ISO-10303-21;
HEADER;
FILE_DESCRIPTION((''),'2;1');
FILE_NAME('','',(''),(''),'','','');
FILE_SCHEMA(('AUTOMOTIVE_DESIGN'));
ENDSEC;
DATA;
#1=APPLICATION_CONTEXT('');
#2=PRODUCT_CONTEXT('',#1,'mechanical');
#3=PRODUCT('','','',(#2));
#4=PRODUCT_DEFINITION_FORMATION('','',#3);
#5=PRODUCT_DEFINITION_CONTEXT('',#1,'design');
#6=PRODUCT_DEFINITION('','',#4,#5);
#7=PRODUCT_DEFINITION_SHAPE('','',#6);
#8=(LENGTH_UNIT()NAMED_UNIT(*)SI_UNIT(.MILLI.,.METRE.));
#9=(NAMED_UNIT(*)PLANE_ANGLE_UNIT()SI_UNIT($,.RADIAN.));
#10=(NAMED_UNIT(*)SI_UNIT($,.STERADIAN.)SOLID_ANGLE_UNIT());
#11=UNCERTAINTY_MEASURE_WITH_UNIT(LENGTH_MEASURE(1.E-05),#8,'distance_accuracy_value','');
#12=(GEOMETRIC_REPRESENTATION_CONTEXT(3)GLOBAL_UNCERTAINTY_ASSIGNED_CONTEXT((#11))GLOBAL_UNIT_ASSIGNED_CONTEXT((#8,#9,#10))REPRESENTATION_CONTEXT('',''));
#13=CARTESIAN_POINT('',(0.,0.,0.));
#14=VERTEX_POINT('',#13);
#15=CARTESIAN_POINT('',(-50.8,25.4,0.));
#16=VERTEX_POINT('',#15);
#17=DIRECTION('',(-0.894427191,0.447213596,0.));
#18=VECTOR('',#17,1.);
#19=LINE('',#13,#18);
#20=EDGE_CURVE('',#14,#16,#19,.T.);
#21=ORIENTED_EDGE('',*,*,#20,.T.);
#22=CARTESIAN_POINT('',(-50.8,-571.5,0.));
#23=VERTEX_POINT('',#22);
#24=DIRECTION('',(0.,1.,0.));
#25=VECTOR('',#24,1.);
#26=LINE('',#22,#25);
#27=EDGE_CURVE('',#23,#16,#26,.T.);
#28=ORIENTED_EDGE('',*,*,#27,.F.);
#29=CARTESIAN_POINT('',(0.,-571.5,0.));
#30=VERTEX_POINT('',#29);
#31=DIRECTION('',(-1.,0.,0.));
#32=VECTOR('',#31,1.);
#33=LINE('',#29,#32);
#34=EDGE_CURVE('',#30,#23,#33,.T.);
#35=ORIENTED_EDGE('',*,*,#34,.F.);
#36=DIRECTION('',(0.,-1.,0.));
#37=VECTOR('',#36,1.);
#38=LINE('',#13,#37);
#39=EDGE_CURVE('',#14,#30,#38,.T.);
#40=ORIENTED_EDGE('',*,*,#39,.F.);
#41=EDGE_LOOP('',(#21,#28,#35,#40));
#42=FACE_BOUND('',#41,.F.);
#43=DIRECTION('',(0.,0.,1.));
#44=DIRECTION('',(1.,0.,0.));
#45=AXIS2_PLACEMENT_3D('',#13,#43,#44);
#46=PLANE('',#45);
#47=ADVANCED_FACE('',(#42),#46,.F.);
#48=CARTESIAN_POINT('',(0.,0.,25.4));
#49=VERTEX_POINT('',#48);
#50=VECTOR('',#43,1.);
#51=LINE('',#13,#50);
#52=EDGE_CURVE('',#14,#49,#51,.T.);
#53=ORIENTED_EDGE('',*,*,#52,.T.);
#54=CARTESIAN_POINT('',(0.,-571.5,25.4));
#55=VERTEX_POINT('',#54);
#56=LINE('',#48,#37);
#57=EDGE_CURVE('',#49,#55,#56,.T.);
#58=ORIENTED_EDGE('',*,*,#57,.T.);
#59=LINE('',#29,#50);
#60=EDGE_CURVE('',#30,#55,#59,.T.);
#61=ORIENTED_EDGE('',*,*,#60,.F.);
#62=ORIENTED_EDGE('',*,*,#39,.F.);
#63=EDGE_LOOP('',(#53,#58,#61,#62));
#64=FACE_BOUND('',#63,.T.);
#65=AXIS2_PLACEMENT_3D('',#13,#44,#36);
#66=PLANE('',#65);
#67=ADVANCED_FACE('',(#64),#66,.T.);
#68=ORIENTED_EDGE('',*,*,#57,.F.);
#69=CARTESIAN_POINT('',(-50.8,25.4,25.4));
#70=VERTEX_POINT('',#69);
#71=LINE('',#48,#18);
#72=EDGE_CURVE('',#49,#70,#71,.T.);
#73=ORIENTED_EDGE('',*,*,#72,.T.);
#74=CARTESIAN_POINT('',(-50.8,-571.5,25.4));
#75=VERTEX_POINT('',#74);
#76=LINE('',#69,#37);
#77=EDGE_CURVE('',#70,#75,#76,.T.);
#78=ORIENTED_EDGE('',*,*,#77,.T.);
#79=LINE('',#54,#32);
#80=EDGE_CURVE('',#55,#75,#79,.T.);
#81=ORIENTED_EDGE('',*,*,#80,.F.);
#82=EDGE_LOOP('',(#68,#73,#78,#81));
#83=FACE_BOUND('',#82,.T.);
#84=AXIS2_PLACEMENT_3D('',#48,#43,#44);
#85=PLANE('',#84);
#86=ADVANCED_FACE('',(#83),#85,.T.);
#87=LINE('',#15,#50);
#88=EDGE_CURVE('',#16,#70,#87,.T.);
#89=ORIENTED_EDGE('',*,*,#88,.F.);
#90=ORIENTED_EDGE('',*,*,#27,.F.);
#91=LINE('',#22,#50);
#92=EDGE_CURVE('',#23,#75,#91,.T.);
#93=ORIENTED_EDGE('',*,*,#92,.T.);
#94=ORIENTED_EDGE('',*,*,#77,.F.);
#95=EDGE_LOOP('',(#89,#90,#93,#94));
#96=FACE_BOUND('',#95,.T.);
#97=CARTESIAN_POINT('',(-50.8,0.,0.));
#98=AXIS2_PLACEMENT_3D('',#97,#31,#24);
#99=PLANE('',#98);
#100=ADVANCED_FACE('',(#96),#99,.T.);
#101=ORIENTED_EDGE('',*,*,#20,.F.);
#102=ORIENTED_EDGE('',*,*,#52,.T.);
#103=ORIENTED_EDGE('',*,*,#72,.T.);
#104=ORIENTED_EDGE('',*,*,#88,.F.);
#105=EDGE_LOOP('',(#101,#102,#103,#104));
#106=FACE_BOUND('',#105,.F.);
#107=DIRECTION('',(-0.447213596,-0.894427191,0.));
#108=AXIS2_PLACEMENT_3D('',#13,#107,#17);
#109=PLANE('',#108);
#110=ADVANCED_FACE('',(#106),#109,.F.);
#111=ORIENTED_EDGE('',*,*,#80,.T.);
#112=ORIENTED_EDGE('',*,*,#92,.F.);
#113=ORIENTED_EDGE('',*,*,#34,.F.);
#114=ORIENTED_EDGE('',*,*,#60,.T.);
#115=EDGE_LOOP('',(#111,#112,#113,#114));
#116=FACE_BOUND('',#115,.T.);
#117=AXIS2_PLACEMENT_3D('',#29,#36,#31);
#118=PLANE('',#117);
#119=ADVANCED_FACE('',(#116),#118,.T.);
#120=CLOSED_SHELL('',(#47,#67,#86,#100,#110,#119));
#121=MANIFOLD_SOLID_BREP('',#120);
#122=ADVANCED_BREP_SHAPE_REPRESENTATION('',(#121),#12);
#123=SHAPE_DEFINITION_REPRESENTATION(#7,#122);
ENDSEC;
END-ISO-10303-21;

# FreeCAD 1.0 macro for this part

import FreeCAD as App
import Part
import Sketcher
Q = App.Units.Quantity

doc = App.newDocument("Part")
body = doc.addObject("PartDesign::Body", "Body")

sketch1 = body.newObject("Sketcher::SketchObject", "Sketch")
sketch1.AttachmentSupport = (doc.getObject("XY_Plane"), [""])
sketch1.MapMode = "FlatFace"
sketch1.addGeometry(Part.LineSegment(App.Vector(0, -572, 0), App.Vector(0, 0, 0)), False)
sketch1.addGeometry(Part.LineSegment(App.Vector(0, 0, 0), App.Vector(-51, 25, 0)), False)
sketch1.addGeometry(Part.LineSegment(App.Vector(-51, 25, 0), App.Vector(-51, -572, 0)), False)
sketch1.addGeometry(Part.LineSegment(App.Vector(-51, -572, 0), App.Vector(0, -572, 0)), False)
sketch1.addConstraint(Sketcher.Constraint("Coincident", 0, 2, 1, 1))
sketch1.addConstraint(Sketcher.Constraint("Coincident", 1, 2, 2, 1))
sketch1.addConstraint(Sketcher.Constraint("Coincident", 2, 2, 3, 1))
sketch1.addConstraint(Sketcher.Constraint("Coincident", 3, 2, 0, 1))
sketch1.addConstraint(Sketcher.Constraint("Vertical", 0))
sketch1.addConstraint(Sketcher.Constraint("Vertical", 2))
sketch1.addConstraint(Sketcher.Constraint("Horizontal", 3))
sketch1.addConstraint(Sketcher.Constraint("Coincident", 0, 2, -1, 1))
sketch1.addConstraint(Sketcher.Constraint("DistanceX", 3, 1, 3, 2, Q("2 in")))
sketch1.addConstraint(Sketcher.Constraint("DistanceY", 0, 1, 0, 2, Q("22.5 in")))
sketch1.addConstraint(Sketcher.Constraint("DistanceY", -1, 1, 1, 2, Q("1 in")))
pad1 = body.newObject("PartDesign::Pad", "Pad")
pad1.Profile = sketch1
pad1.Length = Q("1 in")

doc.recompute()
